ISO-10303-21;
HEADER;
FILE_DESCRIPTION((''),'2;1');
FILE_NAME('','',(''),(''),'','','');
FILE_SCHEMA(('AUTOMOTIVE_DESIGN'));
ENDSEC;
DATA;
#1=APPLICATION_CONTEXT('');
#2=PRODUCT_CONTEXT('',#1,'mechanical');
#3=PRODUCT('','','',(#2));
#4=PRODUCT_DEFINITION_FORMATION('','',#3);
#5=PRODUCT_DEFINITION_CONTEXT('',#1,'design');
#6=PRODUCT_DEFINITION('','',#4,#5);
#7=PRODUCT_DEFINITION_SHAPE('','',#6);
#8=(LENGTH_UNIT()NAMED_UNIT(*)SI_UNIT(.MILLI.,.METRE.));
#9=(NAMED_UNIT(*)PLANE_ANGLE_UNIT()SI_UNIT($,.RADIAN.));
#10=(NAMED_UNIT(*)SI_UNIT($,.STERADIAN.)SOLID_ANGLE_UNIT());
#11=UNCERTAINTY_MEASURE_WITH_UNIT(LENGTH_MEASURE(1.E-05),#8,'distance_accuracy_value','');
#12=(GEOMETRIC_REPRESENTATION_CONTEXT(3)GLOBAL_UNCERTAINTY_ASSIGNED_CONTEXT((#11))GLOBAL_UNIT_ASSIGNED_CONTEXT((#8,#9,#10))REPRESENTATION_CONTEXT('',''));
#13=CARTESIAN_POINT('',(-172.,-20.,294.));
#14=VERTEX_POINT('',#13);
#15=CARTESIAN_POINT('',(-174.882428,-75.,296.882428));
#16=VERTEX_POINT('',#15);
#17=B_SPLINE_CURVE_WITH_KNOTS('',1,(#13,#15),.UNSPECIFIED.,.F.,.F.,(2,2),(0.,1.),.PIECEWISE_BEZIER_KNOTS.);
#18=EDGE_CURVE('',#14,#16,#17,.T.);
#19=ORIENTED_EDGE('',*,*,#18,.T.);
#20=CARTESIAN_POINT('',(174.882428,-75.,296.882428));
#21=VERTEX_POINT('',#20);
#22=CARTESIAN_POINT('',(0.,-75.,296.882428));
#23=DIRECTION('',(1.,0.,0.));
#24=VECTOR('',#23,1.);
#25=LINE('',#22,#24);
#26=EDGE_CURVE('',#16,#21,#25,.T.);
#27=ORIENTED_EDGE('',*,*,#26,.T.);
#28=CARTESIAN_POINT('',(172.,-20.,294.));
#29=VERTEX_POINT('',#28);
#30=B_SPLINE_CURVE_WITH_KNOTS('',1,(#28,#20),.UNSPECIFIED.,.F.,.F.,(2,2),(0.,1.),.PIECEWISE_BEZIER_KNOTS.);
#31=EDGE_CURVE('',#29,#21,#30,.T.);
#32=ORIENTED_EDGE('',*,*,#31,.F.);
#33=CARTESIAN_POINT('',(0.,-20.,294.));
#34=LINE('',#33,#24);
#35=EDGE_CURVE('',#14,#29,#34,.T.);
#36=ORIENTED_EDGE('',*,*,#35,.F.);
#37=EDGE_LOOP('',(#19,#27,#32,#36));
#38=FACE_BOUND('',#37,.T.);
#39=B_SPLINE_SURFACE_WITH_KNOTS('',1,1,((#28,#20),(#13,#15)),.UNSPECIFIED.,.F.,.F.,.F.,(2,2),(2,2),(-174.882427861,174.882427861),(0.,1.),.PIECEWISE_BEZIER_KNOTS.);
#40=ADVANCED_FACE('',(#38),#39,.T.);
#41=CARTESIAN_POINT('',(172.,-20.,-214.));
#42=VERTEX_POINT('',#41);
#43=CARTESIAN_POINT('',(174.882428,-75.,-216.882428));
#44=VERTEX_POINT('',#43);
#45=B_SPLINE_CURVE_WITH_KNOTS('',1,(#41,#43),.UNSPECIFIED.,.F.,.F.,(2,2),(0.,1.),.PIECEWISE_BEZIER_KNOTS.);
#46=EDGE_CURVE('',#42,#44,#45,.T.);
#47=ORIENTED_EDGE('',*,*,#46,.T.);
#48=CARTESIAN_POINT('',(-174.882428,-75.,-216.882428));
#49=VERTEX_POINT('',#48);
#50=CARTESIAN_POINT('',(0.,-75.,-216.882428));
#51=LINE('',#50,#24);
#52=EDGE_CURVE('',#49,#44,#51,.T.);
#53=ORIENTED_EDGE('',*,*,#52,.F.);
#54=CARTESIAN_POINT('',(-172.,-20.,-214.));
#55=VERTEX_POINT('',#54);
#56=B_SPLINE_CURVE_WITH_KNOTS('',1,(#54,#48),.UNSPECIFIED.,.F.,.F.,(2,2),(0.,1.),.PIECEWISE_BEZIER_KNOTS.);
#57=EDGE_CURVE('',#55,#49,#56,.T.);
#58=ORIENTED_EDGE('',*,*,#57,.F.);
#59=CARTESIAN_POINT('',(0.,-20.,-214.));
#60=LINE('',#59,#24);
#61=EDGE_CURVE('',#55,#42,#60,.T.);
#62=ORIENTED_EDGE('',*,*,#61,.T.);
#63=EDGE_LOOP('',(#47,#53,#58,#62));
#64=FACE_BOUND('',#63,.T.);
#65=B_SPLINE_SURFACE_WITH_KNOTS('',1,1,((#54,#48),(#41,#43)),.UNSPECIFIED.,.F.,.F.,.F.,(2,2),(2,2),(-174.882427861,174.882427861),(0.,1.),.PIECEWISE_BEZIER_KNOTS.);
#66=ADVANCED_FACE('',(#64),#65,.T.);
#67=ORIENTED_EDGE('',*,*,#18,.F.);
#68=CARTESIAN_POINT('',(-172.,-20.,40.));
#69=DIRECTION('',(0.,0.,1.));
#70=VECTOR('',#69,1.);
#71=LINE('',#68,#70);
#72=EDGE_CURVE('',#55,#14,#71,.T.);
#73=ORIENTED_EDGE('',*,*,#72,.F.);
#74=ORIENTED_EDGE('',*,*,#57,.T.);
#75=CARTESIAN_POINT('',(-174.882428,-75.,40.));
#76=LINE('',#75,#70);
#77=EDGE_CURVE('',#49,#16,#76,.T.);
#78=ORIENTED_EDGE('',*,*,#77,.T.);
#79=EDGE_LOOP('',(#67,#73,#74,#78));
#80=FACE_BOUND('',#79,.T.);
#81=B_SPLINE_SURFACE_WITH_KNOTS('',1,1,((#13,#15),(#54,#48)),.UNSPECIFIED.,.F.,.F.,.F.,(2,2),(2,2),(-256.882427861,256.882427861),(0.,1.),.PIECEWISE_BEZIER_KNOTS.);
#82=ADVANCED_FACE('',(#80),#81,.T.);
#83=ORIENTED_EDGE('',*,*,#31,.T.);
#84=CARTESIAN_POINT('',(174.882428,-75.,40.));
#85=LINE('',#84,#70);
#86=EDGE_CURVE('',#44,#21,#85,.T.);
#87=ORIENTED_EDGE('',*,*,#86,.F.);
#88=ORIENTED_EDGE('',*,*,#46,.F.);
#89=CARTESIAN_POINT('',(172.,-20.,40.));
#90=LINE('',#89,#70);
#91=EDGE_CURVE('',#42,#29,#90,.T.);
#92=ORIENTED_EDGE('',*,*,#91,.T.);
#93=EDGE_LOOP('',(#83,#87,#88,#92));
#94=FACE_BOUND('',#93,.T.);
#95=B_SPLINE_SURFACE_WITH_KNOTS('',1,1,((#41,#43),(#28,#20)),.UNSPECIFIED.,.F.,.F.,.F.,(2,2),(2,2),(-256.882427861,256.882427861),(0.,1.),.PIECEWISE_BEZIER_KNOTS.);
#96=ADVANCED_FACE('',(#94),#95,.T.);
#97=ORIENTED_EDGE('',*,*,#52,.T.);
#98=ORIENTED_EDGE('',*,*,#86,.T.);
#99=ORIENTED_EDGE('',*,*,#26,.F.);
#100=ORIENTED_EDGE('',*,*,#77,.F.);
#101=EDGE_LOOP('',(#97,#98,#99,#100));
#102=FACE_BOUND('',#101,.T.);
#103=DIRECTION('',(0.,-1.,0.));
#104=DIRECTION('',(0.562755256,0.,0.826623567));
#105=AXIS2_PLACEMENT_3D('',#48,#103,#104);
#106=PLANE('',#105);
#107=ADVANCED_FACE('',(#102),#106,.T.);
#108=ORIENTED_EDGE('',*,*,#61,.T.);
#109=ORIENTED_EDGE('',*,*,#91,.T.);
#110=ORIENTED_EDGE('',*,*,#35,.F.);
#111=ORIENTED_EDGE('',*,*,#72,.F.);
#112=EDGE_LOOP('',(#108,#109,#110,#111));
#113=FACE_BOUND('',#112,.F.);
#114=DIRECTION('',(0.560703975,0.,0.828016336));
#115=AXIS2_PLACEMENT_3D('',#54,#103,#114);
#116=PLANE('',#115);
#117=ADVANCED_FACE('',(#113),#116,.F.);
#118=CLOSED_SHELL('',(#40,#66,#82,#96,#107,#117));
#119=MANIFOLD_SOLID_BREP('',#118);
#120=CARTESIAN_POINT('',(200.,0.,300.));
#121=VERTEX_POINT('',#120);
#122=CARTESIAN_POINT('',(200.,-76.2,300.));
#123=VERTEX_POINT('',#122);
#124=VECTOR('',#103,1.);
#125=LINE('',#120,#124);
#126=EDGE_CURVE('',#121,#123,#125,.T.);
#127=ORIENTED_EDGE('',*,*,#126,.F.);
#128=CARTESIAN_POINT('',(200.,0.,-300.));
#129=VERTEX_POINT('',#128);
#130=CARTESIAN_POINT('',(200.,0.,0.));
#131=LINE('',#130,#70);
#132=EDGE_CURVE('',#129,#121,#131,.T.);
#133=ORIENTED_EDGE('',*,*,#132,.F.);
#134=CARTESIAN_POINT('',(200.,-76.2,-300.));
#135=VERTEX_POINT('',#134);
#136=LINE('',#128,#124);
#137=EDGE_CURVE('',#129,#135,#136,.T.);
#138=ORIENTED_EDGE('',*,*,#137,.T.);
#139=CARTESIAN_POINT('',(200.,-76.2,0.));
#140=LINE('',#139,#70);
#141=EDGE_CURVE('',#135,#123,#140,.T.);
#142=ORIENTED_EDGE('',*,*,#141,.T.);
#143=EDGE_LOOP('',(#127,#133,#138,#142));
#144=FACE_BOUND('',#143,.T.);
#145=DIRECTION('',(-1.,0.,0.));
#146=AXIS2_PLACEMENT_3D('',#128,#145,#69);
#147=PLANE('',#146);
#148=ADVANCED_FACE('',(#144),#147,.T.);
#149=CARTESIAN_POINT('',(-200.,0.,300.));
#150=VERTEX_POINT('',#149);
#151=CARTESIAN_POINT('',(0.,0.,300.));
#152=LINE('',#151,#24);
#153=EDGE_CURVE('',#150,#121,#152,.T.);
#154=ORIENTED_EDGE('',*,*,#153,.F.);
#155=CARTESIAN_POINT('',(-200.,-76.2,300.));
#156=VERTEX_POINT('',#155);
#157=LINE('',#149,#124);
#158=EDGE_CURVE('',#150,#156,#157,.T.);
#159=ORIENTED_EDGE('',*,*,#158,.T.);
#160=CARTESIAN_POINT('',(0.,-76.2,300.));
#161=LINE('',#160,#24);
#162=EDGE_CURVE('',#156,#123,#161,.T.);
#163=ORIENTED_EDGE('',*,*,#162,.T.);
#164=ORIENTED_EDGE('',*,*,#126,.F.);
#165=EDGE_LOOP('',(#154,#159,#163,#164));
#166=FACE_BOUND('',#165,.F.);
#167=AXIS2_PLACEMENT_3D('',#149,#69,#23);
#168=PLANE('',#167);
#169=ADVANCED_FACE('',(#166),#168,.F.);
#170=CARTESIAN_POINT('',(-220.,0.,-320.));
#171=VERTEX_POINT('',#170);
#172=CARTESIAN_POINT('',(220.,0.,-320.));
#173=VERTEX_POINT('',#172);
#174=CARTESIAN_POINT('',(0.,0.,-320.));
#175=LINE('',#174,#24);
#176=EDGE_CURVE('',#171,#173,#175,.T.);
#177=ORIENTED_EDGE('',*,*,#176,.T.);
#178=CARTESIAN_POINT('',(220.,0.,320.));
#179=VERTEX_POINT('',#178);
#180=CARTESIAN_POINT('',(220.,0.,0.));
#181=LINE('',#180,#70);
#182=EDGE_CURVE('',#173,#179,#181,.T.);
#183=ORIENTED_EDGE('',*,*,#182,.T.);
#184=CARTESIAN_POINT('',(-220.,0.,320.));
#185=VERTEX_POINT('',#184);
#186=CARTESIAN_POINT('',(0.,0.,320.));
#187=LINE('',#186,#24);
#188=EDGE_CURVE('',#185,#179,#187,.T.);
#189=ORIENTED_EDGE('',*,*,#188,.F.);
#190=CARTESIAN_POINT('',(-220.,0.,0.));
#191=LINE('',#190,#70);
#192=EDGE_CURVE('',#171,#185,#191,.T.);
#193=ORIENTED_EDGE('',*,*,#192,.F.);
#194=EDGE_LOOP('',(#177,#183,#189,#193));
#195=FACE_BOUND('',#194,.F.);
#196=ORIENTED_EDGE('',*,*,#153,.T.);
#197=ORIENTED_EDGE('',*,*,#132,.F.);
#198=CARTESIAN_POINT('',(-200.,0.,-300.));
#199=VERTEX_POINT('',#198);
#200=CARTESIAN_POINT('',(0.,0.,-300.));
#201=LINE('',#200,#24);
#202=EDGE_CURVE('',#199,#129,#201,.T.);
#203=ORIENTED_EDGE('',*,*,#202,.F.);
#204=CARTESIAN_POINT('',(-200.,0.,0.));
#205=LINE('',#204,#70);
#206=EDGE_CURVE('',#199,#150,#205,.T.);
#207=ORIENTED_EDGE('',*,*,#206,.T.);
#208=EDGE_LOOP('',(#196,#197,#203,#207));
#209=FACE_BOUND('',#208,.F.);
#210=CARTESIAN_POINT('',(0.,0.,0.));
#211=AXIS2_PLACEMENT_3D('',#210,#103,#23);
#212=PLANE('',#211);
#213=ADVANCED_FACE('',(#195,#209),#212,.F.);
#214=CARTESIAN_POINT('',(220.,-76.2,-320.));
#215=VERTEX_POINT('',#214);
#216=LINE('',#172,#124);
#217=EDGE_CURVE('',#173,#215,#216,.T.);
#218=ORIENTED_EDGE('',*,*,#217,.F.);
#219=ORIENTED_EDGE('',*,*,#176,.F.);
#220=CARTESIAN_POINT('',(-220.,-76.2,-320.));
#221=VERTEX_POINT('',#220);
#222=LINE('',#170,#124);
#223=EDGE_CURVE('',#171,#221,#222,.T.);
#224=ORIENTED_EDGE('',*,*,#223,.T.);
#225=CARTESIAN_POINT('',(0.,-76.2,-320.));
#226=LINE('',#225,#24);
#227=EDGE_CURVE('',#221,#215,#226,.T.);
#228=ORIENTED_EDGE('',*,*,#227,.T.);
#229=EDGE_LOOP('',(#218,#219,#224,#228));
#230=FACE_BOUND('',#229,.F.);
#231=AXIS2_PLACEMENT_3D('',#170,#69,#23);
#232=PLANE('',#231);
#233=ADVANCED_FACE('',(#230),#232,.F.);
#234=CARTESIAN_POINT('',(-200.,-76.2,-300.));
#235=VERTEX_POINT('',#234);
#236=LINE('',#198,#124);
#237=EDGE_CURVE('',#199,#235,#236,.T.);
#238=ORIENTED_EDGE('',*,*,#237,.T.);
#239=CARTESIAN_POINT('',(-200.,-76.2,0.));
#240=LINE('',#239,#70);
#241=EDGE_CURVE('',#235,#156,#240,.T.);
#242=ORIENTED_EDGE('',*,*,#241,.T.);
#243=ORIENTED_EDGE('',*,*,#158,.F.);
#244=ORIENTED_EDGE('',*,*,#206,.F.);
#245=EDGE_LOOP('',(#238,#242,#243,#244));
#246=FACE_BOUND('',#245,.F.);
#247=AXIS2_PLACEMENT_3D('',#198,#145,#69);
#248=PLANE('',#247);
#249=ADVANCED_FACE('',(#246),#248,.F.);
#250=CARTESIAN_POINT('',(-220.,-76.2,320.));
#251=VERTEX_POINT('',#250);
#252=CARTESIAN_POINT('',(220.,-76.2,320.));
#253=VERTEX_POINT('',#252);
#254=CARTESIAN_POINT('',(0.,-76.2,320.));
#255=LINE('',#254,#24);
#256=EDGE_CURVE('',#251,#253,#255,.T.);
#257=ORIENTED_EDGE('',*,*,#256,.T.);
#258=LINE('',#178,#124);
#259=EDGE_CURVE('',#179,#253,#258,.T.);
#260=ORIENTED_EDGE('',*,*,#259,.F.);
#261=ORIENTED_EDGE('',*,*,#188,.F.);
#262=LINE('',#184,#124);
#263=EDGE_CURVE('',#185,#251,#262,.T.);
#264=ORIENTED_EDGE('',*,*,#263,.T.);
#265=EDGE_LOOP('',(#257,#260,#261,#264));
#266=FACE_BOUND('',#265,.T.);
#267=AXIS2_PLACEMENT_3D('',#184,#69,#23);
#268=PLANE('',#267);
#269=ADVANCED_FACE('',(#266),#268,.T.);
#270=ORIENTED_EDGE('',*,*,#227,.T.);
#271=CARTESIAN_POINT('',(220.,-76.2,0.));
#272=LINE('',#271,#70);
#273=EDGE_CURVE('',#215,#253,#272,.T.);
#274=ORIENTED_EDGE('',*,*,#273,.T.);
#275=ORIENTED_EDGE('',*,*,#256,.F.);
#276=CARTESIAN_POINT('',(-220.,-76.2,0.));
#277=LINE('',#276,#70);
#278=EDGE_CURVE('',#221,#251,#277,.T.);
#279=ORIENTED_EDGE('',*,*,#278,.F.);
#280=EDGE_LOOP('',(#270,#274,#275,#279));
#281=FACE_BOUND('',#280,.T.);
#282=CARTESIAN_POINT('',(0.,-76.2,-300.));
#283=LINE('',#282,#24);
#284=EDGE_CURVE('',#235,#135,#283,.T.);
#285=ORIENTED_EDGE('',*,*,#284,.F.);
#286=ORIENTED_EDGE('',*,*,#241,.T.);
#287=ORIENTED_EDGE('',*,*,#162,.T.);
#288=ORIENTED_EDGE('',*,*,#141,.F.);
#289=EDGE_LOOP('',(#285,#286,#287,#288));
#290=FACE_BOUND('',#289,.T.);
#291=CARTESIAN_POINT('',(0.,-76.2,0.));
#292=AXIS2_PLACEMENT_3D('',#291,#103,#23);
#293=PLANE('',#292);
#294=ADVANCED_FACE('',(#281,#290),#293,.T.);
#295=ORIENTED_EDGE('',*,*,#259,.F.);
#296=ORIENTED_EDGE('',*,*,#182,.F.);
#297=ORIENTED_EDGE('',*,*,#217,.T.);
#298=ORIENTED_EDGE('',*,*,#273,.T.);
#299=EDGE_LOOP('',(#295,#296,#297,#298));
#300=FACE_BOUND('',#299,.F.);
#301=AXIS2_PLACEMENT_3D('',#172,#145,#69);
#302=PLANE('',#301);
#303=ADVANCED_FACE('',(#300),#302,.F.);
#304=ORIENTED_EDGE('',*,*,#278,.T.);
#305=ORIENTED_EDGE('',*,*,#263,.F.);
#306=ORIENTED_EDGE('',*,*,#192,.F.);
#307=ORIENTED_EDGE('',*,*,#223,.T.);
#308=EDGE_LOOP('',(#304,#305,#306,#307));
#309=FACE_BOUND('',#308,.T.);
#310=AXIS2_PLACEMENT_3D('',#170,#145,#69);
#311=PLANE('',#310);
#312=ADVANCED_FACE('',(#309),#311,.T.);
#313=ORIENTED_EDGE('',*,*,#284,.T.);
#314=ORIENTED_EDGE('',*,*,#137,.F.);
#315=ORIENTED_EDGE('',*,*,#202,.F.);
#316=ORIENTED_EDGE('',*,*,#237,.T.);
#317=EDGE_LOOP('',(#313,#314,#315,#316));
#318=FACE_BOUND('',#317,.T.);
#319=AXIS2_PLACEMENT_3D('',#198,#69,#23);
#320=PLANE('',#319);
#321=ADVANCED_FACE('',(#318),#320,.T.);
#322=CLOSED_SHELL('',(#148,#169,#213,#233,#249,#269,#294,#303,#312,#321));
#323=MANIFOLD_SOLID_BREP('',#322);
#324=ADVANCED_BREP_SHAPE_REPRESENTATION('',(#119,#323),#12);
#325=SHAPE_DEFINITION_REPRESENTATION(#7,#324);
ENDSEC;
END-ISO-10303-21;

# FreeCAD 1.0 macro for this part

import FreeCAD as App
import Part
import Sketcher
from FreeCAD import Vector
Q = App.Units.Quantity

doc = App.newDocument("Part")
body = doc.addObject("PartDesign::Body", "Body")

sketch1 = body.newObject("Sketcher::SketchObject", "Sketch")
sketch1.AttachmentSupport = (doc.getObject("XZ_Plane"), [""])
sketch1.MapMode = "FlatFace"
sketch1.addGeometry(Part.LineSegment(Vector(-220, 320, 0), Vector(-220, -320, 0)), False)
sketch1.addGeometry(Part.LineSegment(Vector(-220, -320, 0), Vector(220, -320, 0)), False)
sketch1.addGeometry(Part.LineSegment(Vector(220, -320, 0), Vector(220, 320, 0)), False)
sketch1.addGeometry(Part.LineSegment(Vector(220, 320, 0), Vector(-220, 320, 0)), False)
sketch1.addGeometry(Part.LineSegment(Vector(200, -300, 0), Vector(-200, -300, 0)), False)
sketch1.addGeometry(Part.LineSegment(Vector(-200, -300, 0), Vector(-200, 300, 0)), False)
sketch1.addGeometry(Part.LineSegment(Vector(-200, 300, 0), Vector(200, 300, 0)), False)
sketch1.addGeometry(Part.LineSegment(Vector(200, 300, 0), Vector(200, -300, 0)), False)
sketch1.addConstraint(Sketcher.Constraint("Coincident", 0, 2, 1, 1))
sketch1.addConstraint(Sketcher.Constraint("Coincident", 1, 2, 2, 1))
sketch1.addConstraint(Sketcher.Constraint("Coincident", 2, 2, 3, 1))
sketch1.addConstraint(Sketcher.Constraint("Coincident", 3, 2, 0, 1))
sketch1.addConstraint(Sketcher.Constraint("Coincident", 4, 2, 5, 1))
sketch1.addConstraint(Sketcher.Constraint("Coincident", 5, 2, 6, 1))
sketch1.addConstraint(Sketcher.Constraint("Coincident", 6, 2, 7, 1))
sketch1.addConstraint(Sketcher.Constraint("Coincident", 7, 2, 4, 1))
sketch1.addConstraint(Sketcher.Constraint("Vertical", 0))
sketch1.addConstraint(Sketcher.Constraint("Horizontal", 1))
sketch1.addConstraint(Sketcher.Constraint("Vertical", 2))
sketch1.addConstraint(Sketcher.Constraint("Horizontal", 3))
sketch1.addConstraint(Sketcher.Constraint("Horizontal", 4))
sketch1.addConstraint(Sketcher.Constraint("Vertical", 5))
sketch1.addConstraint(Sketcher.Constraint("Horizontal", 6))
sketch1.addConstraint(Sketcher.Constraint("Vertical", 7))
sketch1.addConstraint(Sketcher.Constraint("Symmetric", 0, 2, 2, 2, -1, 1))
sketch1.addConstraint(Sketcher.Constraint("Symmetric", 4, 2, 6, 2, -1, 1))
sketch1.addConstraint(Sketcher.Constraint("DistanceX", 1, 1, 1, 2, Q("440 mm")))
sketch1.addConstraint(Sketcher.Constraint("DistanceX", 4, 2, 4, 1, Q("400 mm")))
sketch1.addConstraint(Sketcher.Constraint("DistanceY", 0, 2, 0, 1, Q("640 mm")))
sketch1.addConstraint(Sketcher.Constraint("DistanceY", 5, 1, 5, 2, Q("600 mm")))
pad1 = body.newObject("PartDesign::Pad", "Pad")
pad1.Profile = sketch1
pad1.Length = 76.2
body2 = doc.addObject("PartDesign::Body", "Body001")

sketch2 = body2.newObject("Sketcher::SketchObject", "Sketch001")
sketch2.AttachmentSupport = (doc.getObject("XZ_Plane001"), [""])
sketch2.MapMode = "FlatFace"
sketch2.addGeometry(Part.LineSegment(Vector(-172, 254, 0), Vector(-172, -254, 0)), False)
sketch2.addGeometry(Part.LineSegment(Vector(-172, -254, 0), Vector(172, -254, 0)), False)
sketch2.addGeometry(Part.LineSegment(Vector(172, -254, 0), Vector(172, 254, 0)), False)
sketch2.addGeometry(Part.LineSegment(Vector(172, 254, 0), Vector(-172, 254, 0)), False)
sketch2.addConstraint(Sketcher.Constraint("Coincident", 0, 2, 1, 1))
sketch2.addConstraint(Sketcher.Constraint("Coincident", 1, 2, 2, 1))
sketch2.addConstraint(Sketcher.Constraint("Coincident", 2, 2, 3, 1))
sketch2.addConstraint(Sketcher.Constraint("Coincident", 3, 2, 0, 1))
sketch2.addConstraint(Sketcher.Constraint("Vertical", 0))
sketch2.addConstraint(Sketcher.Constraint("Horizontal", 1))
sketch2.addConstraint(Sketcher.Constraint("Vertical", 2))
sketch2.addConstraint(Sketcher.Constraint("Horizontal", 3))
sketch2.addConstraint(Sketcher.Constraint("Symmetric", 0, 2, 2, 2, -1, 1))
sketch2.addConstraint(Sketcher.Constraint("DistanceX", 1, 1, 1, 2, Q("344 mm")))
sketch2.addConstraint(Sketcher.Constraint("DistanceY", 0, 2, 0, 1, Q("508 mm")))
pad2 = body2.newObject("PartDesign::Pad", "Pad001")
pad2.Profile = sketch2
pad2.Length = 55
pad2.TaperAngle = 3
body3 = doc.addObject("PartDesign::Body", "Body002")
doc.recompute()

body2.Placement = App.Placement(Vector(0, -20, 40), App.Rotation(Vector(0, 0, 1), 0))
boolean = body3.newObject("PartDesign::Boolean", "Boolean")
boolean.Type = "Fuse"
boolean.addObjects([body2])

doc.recompute()
